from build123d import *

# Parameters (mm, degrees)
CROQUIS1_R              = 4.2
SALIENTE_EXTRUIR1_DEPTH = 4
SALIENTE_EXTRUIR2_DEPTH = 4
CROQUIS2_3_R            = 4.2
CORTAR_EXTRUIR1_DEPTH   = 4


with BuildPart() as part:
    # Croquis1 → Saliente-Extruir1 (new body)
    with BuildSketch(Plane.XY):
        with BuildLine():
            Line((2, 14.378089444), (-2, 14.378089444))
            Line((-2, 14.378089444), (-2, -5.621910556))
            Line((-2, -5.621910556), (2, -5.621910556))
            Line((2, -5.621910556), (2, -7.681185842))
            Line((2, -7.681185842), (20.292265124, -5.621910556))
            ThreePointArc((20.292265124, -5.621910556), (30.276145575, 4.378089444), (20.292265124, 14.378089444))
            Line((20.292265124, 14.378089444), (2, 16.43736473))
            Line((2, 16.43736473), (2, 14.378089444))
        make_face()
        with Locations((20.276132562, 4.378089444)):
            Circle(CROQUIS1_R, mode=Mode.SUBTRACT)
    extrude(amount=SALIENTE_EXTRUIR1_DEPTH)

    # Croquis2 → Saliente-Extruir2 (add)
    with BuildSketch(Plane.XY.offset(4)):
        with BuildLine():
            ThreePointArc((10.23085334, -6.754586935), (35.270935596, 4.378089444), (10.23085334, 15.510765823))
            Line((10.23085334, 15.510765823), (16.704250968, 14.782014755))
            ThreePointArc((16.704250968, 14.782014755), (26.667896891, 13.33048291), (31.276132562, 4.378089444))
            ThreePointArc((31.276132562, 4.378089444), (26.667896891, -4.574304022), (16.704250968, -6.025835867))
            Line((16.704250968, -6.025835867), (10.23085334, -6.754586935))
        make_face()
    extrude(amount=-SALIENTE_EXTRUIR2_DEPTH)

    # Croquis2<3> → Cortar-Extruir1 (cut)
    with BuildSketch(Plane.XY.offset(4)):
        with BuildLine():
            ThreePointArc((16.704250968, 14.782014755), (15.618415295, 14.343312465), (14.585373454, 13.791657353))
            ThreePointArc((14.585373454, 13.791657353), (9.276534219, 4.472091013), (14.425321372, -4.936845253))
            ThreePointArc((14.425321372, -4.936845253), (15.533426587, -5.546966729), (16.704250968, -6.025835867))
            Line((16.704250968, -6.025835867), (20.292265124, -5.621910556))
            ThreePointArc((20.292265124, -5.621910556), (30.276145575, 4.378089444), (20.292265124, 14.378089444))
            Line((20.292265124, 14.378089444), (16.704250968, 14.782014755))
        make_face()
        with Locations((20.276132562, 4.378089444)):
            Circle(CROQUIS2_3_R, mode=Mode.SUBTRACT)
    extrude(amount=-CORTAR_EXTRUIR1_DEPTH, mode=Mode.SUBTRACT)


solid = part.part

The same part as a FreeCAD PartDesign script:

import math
import FreeCAD as App
import Part
import Sketcher

V = App.Vector
Q = App.Units.Quantity

doc = App.newDocument("Part")
body = doc.addObject("PartDesign::Body", "Body")

# Sketch on XY plane
sketch1 = body.newObject("Sketcher::SketchObject", "Sketch")
sketch1.AttachmentSupport = (doc.getObject("XY_Plane"), [""])
sketch1.MapMode = "FlatFace"
sketch1.addGeometry([
    Part.LineSegment(V(2, 14.378089, 0), V(-2, 14.378089, 0)),  # 0
    Part.LineSegment(V(-2, 14.378089, 0), V(-2, -5.621911, 0)),  # 1
    Part.LineSegment(V(-2, -5.621911, 0), V(2, -5.621911, 0)),  # 2
    Part.LineSegment(V(2, -5.621911, 0), V(2, -7.681186, 0)),  # 3
    Part.LineSegment(V(2, -7.681186, 0), V(20.292265, -5.621911, 0)),  # 4
    Part.ArcOfCircle(Part.Circle(V(20.276133, 4.378089, 0), V(0, 0, 1), 10.000013), math.radians(-89.907567), math.radians(89.907567)),  # 5
    Part.LineSegment(V(20.292265, 14.378089, 0), V(2, 16.437365, 0)),  # 6
    Part.LineSegment(V(2, 16.437365, 0), V(2, 14.378089, 0)),  # 7
    Part.Circle(V(20.276133, 4.378089, 0), V(0, 0, 1), 4.2),  # 8
], False)
sketch1.addConstraint([
    Sketcher.Constraint("Coincident", 0, 2, 1, 1),
    Sketcher.Constraint("Coincident", 1, 2, 2, 1),
    Sketcher.Constraint("Coincident", 2, 2, 3, 1),
    Sketcher.Constraint("Coincident", 3, 2, 4, 1),
    Sketcher.Constraint("Coincident", 4, 2, 5, 1),
    Sketcher.Constraint("Coincident", 5, 2, 6, 1),
    Sketcher.Constraint("Coincident", 6, 2, 7, 1),
    Sketcher.Constraint("Coincident", 7, 2, 0, 1),
    Sketcher.Constraint("Horizontal", 0),
    Sketcher.Constraint("Vertical", 1),
    Sketcher.Constraint("Horizontal", 2),
    Sketcher.Constraint("Vertical", 3),
    Sketcher.Constraint("Vertical", 7),
    Sketcher.Constraint("Coincident", 8, 3, 5, 3),
    Sketcher.Constraint("Horizontal", 2, 2, 4, 2),
    Sketcher.Constraint("Horizontal", 0, 2, 5, 2),
    Sketcher.Constraint("Vertical", 4, 2, 5, 2),
    Sketcher.Constraint("Vertical", 3, 2, 6, 2),
    Sketcher.Constraint("Equal", 3, 7),
    Sketcher.Constraint("Diameter", 8, Q("8.4 mm")),
    Sketcher.Constraint("DistanceX", 0, 2, 0, 1, Q("4 mm")),
    Sketcher.Constraint("DistanceY", 1, 2, 1, 1, Q("20 mm")),
    Sketcher.Constraint("DistanceX", 0, 2, -1, 1, Q("2 mm")),
    Sketcher.Constraint("DistanceY", 3, 2, 3, 1, Q("2.059275 mm")),
    Sketcher.Constraint("DistanceY", -1, 1, 5, 3, Q("4.378089 mm")),
    Sketcher.Constraint("Distance", 4, Q("18.407813 mm")),
    Sketcher.Constraint("DistanceX", -1, 1, 5, 3, Q("20.276133 mm")),
])
pad1 = body.newObject("PartDesign::Pad", "Pad")
pad1.Profile = sketch1
pad1.Length = 4

# Sketch on XY plane
sketch2 = body.newObject("Sketcher::SketchObject", "Sketch001")
sketch2.AttachmentSupport = (doc.getObject("XY_Plane"), [""])
sketch2.MapMode = "FlatFace"
sketch2.AttachmentOffset = App.Placement(V(0, 0, 4), App.Rotation())
sketch2.addGeometry([
    Part.ArcOfCircle(Part.Circle(V(20.276133, 4.378089, 0), V(0, 0, 1), 14.994803), math.radians(-132.060689), math.radians(132.060689)),  # 0
    Part.LineSegment(V(10.230853, 15.510766, 0), V(16.704251, 14.782015, 0)),  # 1
    Part.ArcOfCircle(Part.Circle(V(20.276133, 4.378089, 0), V(0, 0, 1), 11), math.radians(0), math.radians(108.948401)),  # 2
    Part.ArcOfCircle(Part.Circle(V(20.276133, 4.378089, 0), V(0, 0, 1), 11), math.radians(-108.948401), math.radians(0)),  # 3
    Part.LineSegment(V(16.704251, -6.025836, 0), V(10.230853, -6.754587, 0)),  # 4
], False)
sketch2.addConstraint([
    Sketcher.Constraint("Coincident", 0, 2, 1, 1),
    Sketcher.Constraint("Coincident", 1, 2, 2, 2),
    Sketcher.Constraint("Tangent", 2, 1, 3, 2),
    Sketcher.Constraint("Coincident", 3, 1, 4, 1),
    Sketcher.Constraint("Coincident", 4, 2, 0, 1),
    Sketcher.Constraint("Coincident", 2, 3, 0, 3),
    Sketcher.Constraint("Equal", 2, 3),
    Sketcher.Constraint("Horizontal", 3, 3, 2, 1),
    Sketcher.Constraint("Vertical", 1, 2, 3, 1),
    Sketcher.Constraint("Vertical", 0, 2, 4, 2),
    Sketcher.Constraint("Radius", 2, Q("11 mm")),
    Sketcher.Constraint("Radius", 0, Q("14.994803 mm")),
    Sketcher.Constraint("Distance", 1, Q("6.514289 mm")),
    Sketcher.Constraint("DistanceY", -1, 1, 0, 3, Q("4.378089 mm")),
    Sketcher.Constraint("DistanceX", -1, 1, 1, 2, Q("16.704251 mm")),
    Sketcher.Constraint("DistanceX", 0, 2, 2, 3, Q("10.045279 mm")),
])
pad2 = body.newObject("PartDesign::Pad", "Pad001")
pad2.Profile = sketch2
pad2.Length = 4
pad2.Reversed = True

# Sketch on XY plane
sketch3 = body.newObject("Sketcher::SketchObject", "Sketch002")
sketch3.AttachmentSupport = (doc.getObject("XY_Plane"), [""])
sketch3.MapMode = "FlatFace"
sketch3.AttachmentOffset = App.Placement(V(0, 0, 4), App.Rotation())
sketch3.addGeometry([
    Part.ArcOfCircle(Part.Circle(V(20.276133, 4.378089, 0), V(0, 0, 1), 11), math.radians(108.948401), math.radians(121.154109)),  # 0
    Part.ArcOfCircle(Part.Circle(V(20.276133, 4.378089, 0), V(0, 0, 1), 11), math.radians(121.154109), math.radians(237.866626)),  # 1
    Part.ArcOfCircle(Part.Circle(V(20.276133, 4.378089, 0), V(0, 0, 1), 11), math.radians(-122.133374), math.radians(-108.948401)),  # 2
    Part.LineSegment(V(16.704251, -6.025836, 0), V(20.292265, -5.621911, 0)),  # 3
    Part.ArcOfCircle(Part.Circle(V(20.276133, 4.378089, 0), V(0, 0, 1), 10.000013), math.radians(-89.907567), math.radians(89.907567)),  # 4
    Part.LineSegment(V(20.292265, 14.378089, 0), V(16.704251, 14.782015, 0)),  # 5
    Part.Circle(V(20.276133, 4.378089, 0), V(0, 0, 1), 4.2),  # 6
], False)
sketch3.addConstraint([
    Sketcher.Constraint("Tangent", 0, 2, 1, 1),
    Sketcher.Constraint("Tangent", 1, 2, 2, 1),
    Sketcher.Constraint("Coincident", 2, 2, 3, 1),
    Sketcher.Constraint("Coincident", 3, 2, 4, 1),
    Sketcher.Constraint("Coincident", 4, 2, 5, 1),
    Sketcher.Constraint("Coincident", 5, 2, 0, 1),
    Sketcher.Constraint("Coincident", 2, 3, 0, 3),
    Sketcher.Constraint("Coincident", 4, 3, 0, 3),
    Sketcher.Constraint("Coincident", 6, 3, 0, 3),
    Sketcher.Constraint("Vertical", 3, 2, 4, 2),
    Sketcher.Constraint("Vertical", 2, 2, 5, 2),
    Sketcher.Constraint("Radius", 0, Q("11 mm")),
    Sketcher.Constraint("Diameter", 6, Q("8.4 mm")),
    Sketcher.Constraint("DistanceY", 3, 2, 2, 3, Q("10 mm")),
    Sketcher.Constraint("Distance", 3, Q("3.610679 mm")),
    Sketcher.Constraint("DistanceY", -1, 1, 0, 3, Q("4.378089 mm")),
    Sketcher.Constraint("DistanceX", -1, 1, 1, 2, Q("14.425321 mm")),
    Sketcher.Constraint("DistanceX", -1, 1, 2, 2, Q("16.704251 mm")),
    Sketcher.Constraint("DistanceX", 0, 2, 1, 3, Q("5.690759 mm")),
    Sketcher.Constraint("DistanceX", 1, 2, 2, 3, Q("5.850811 mm")),
])
pocket1 = body.newObject("PartDesign::Pocket", "Pocket")
pocket1.Profile = sketch3
pocket1.Length = 4

doc.recompute()
